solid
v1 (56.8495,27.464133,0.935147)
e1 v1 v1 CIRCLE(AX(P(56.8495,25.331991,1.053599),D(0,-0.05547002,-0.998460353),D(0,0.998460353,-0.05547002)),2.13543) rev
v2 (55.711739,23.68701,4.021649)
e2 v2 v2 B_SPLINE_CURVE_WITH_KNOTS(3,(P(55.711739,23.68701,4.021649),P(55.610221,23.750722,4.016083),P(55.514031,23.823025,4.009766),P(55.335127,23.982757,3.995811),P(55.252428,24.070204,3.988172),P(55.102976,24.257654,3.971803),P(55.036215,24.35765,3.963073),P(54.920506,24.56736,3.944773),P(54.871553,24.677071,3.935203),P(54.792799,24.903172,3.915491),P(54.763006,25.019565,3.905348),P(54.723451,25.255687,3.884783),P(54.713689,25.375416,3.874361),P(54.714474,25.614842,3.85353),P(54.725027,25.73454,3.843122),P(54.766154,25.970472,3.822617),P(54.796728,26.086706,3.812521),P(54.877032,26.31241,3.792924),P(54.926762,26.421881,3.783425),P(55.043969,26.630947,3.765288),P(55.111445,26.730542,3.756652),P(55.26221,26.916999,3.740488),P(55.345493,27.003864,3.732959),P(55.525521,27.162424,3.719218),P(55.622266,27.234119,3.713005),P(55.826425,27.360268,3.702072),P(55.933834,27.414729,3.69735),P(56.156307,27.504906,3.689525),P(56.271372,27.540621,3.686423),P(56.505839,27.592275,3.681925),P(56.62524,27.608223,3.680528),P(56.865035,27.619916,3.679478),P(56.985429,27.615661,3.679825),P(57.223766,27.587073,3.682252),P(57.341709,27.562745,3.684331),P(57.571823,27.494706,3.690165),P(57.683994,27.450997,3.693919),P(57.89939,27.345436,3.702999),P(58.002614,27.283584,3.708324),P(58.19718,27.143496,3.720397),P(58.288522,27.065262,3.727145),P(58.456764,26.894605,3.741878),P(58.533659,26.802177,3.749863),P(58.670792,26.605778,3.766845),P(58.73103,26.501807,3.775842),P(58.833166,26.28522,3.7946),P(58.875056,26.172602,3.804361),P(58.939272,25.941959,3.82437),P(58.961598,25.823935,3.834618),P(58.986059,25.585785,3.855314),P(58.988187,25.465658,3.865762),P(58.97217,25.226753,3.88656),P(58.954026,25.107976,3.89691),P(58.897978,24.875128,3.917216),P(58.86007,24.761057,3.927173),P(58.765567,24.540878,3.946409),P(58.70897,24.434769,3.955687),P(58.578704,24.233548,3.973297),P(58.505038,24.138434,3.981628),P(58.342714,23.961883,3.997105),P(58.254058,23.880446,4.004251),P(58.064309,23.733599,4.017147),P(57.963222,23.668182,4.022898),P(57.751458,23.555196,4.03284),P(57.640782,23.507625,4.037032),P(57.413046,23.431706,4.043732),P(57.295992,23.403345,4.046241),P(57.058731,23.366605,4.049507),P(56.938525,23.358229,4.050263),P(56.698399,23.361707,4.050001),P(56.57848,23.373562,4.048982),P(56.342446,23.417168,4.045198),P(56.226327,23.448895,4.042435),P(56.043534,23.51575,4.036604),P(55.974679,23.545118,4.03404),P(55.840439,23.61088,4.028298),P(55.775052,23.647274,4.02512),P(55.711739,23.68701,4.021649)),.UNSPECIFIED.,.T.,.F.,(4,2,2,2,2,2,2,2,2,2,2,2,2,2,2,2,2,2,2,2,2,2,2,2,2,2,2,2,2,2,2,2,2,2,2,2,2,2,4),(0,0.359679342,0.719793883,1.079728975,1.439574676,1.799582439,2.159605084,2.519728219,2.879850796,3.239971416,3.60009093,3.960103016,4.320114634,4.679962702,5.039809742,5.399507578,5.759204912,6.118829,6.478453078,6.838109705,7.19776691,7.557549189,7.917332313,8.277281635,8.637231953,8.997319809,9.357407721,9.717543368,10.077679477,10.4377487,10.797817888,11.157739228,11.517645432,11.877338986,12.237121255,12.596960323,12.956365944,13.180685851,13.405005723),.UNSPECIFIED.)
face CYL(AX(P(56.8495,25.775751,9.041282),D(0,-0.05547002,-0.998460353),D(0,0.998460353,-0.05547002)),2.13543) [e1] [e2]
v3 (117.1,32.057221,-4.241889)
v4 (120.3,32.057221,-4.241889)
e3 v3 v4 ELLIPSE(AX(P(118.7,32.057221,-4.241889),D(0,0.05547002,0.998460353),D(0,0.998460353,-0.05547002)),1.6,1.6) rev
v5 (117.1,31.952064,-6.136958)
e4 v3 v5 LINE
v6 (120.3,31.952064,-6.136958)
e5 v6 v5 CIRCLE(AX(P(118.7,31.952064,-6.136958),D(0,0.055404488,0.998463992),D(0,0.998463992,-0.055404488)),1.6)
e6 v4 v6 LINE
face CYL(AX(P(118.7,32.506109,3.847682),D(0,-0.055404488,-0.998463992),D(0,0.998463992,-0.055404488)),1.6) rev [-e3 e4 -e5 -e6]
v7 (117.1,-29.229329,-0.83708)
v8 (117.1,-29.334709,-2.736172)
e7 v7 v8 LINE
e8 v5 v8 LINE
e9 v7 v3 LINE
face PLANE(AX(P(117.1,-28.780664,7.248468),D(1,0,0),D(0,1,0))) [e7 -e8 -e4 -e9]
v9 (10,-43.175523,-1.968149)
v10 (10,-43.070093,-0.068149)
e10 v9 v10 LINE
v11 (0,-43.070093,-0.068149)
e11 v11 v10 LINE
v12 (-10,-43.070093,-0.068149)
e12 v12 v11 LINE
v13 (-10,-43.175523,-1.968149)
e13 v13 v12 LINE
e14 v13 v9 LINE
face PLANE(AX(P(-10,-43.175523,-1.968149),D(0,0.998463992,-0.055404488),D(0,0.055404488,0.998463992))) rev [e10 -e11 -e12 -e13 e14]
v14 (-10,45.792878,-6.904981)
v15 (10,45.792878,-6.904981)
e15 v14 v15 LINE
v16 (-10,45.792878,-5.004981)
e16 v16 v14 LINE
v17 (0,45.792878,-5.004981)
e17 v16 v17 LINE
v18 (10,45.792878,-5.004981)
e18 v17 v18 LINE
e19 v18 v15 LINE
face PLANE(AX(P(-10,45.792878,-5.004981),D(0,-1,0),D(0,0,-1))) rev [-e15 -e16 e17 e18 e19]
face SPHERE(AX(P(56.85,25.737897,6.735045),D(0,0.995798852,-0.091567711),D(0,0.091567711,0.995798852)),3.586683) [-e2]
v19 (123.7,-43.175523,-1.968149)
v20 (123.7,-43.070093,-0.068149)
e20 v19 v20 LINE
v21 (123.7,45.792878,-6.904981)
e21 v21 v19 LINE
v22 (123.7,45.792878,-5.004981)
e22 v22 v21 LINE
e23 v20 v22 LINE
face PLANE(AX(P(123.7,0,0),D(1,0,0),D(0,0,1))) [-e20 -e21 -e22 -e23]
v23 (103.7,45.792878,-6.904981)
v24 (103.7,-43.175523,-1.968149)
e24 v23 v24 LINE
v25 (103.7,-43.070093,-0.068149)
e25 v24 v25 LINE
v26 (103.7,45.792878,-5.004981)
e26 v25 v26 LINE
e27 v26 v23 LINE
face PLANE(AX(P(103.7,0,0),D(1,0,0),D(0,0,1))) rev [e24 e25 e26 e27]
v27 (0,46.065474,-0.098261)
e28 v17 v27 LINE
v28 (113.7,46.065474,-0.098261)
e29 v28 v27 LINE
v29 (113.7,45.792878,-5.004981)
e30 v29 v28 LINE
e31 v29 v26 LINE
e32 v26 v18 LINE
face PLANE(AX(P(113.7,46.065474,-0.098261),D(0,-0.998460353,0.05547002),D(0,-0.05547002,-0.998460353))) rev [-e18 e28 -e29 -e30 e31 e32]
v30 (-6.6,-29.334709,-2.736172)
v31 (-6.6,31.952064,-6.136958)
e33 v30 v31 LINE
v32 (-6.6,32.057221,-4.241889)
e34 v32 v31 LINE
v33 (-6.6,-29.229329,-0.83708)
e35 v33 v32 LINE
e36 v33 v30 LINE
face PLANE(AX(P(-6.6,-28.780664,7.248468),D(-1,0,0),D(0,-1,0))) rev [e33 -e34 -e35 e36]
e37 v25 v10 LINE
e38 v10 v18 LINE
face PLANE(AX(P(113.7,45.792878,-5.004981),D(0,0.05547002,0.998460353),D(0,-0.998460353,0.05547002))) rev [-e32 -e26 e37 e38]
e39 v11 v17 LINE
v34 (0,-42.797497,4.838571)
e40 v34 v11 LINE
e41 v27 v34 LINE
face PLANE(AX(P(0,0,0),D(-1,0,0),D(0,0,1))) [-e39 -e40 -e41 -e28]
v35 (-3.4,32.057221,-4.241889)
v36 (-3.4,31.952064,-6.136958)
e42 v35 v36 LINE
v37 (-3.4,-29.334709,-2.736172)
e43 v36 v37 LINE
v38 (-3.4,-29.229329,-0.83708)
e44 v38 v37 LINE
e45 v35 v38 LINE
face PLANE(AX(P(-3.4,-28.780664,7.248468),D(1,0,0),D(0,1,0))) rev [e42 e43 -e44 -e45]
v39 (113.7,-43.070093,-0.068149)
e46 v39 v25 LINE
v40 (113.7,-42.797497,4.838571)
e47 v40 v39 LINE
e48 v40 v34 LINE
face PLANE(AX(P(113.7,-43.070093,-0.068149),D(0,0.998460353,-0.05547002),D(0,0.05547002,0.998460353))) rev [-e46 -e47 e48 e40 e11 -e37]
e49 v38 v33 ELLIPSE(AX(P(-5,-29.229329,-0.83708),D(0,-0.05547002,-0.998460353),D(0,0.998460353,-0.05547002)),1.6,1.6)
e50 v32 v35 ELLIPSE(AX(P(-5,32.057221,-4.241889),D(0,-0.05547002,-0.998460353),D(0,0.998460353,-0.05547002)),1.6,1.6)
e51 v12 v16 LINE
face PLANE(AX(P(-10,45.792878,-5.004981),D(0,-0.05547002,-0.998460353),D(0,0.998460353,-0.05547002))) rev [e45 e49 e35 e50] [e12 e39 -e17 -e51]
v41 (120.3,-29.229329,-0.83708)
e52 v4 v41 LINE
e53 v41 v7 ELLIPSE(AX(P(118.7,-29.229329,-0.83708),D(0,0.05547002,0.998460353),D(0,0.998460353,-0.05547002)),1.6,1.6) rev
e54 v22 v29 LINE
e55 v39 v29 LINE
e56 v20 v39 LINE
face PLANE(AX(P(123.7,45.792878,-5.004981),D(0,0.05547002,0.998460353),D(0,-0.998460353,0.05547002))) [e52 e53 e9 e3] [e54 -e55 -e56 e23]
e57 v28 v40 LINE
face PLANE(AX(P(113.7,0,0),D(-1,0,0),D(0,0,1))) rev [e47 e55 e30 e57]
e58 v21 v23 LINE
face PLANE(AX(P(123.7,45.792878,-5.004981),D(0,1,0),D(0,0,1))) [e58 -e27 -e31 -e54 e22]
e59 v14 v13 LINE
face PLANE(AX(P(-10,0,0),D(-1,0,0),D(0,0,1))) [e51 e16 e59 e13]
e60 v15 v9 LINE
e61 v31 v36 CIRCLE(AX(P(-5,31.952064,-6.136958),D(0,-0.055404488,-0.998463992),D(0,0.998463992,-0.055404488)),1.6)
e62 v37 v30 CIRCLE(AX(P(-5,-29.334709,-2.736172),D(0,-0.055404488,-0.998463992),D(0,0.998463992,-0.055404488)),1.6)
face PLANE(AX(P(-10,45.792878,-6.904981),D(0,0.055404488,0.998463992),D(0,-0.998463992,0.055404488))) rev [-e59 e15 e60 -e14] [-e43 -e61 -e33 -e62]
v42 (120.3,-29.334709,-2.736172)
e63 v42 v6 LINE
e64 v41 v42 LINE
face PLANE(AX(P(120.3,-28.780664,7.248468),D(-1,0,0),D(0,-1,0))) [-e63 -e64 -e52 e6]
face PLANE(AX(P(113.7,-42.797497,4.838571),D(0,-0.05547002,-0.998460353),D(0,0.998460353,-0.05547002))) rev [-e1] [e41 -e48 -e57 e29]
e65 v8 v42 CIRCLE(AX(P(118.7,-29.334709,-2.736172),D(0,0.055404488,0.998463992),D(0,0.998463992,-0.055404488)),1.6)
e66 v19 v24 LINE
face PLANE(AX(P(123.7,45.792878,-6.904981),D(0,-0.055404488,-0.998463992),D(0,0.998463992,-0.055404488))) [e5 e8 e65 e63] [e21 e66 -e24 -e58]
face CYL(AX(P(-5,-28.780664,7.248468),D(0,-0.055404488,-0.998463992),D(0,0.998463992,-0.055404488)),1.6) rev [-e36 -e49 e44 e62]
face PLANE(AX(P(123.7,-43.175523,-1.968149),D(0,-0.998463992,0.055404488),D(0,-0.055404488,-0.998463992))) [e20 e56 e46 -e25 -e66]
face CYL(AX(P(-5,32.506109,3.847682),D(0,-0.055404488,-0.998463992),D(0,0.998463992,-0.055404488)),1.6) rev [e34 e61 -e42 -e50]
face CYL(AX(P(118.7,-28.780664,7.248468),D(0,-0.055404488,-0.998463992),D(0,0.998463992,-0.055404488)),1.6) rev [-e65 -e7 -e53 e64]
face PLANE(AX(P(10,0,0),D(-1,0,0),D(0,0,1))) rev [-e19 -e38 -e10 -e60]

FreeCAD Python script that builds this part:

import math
import FreeCAD as App
import Part
import Sketcher

doc = App.newDocument("Part")
body = doc.addObject("PartDesign::Body", "Body")

# Sketch on YZ plane
sketch1 = body.newObject("Sketcher::SketchObject", "Sketch")
sketch1.AttachmentSupport = (doc.getObject("YZ_Plane"), [""])
sketch1.MapMode = "FlatFace"
sketch1.addGeometry([
    Part.LineSegment(App.Vector(45.8, -5, 0), App.Vector(46.1, -0.1, 0)),
    Part.LineSegment(App.Vector(46.1, -0.1, 0), App.Vector(-42.8, 4.8, 0)),
    Part.LineSegment(App.Vector(-42.8, 4.8, 0), App.Vector(-43.1, -0.1, 0)),
    Part.LineSegment(App.Vector(-43.1, -0.1, 0), App.Vector(45.8, -5, 0)),
], False)
sketch1.addConstraint([
    Sketcher.Constraint("Coincident", 0, 2, 1, 1),
    Sketcher.Constraint("Coincident", 1, 2, 2, 1),
    Sketcher.Constraint("Coincident", 2, 2, 3, 1),
    Sketcher.Constraint("Coincident", 3, 2, 0, 1),
    Sketcher.Constraint("Perpendicular", 0, 1),
    Sketcher.Constraint("Perpendicular", 1, 2),
    Sketcher.Constraint("Perpendicular", 2, 3),
    Sketcher.Constraint("Distance", 1, 89.0),
    Sketcher.Constraint("DistanceY", 0, 2, -1, 1, 0.098261),
    Sketcher.Constraint("DistanceY", -1, 1, 1, 2, 4.838571),
    Sketcher.Constraint("DistanceY", 2, 2, -1, 1, 0.068149),
    Sketcher.Constraint("DistanceX", -1, 1, 3, 2, 45.792878),
])
pad1 = body.newObject("PartDesign::Pad", "Pad")
pad1.Profile = sketch1
pad1.Length = 113.7

# Sketch on YZ plane
sketch2 = body.newObject("Sketcher::SketchObject", "Sketch001")
sketch2.AttachmentSupport = (doc.getObject("YZ_Plane"), [""])
sketch2.MapMode = "FlatFace"
sketch2.addGeometry([
    Part.LineSegment(App.Vector(45.8, -5, 0), App.Vector(45.8, -6.9, 0)),
    Part.LineSegment(App.Vector(45.8, -6.9, 0), App.Vector(-43.2, -2, 0)),
    Part.LineSegment(App.Vector(-43.2, -2, 0), App.Vector(-43.1, -0.1, 0)),
    Part.LineSegment(App.Vector(-43.1, -0.1, 0), App.Vector(45.8, -5, 0)),
], False)
sketch2.addConstraint([
    Sketcher.Constraint("Coincident", 0, 2, 1, 1),
    Sketcher.Constraint("Coincident", 1, 2, 2, 1),
    Sketcher.Constraint("Coincident", 2, 2, 3, 1),
    Sketcher.Constraint("Coincident", 3, 2, 0, 1),
    Sketcher.Constraint("Vertical", 0),
    Sketcher.Constraint("Perpendicular", 1, 2),
    Sketcher.Constraint("Distance", 3, 89.0),
    Sketcher.Constraint("DistanceY", 0, 2, 0, 1, 1.9),
    Sketcher.Constraint("DistanceY", 1, 2, 2, 2, 1.9),
    Sketcher.Constraint("DistanceX", 1, 2, 0, 2, 88.968402),
    Sketcher.Constraint("DistanceX", -1, 1, 0, 2, 45.792878),
    Sketcher.Constraint("DistanceY", 0, 2, -1, 1, 6.904981),
])
pad2 = body.newObject("PartDesign::Pad", "Pad001")
pad2.Profile = sketch2
pad2.Length = 20
pad2.Midplane = True

# Sketch on an angled plane
sketch3 = body.newObject("Sketcher::SketchObject", "Sketch002")
sketch3.Placement = App.Placement(App.Vector(0, -0.241411, -4.350551), App.Rotation(App.Vector(-1, 0, 0), App.Vector(0, 0.998463992, -0.055404488), App.Vector(0, -0.055404488, -0.998463992), "ZXY"))
sketch3.addGeometry([
    Part.LineSegment(App.Vector(3.4, 32.2, 0), App.Vector(3.4, -29.1, 0)),
    Part.ArcOfCircle(Part.Circle(App.Vector(5, -29.1, 0), App.Vector(0, 0, 1), 1.6), math.radians(180), math.radians(360)),
    Part.LineSegment(App.Vector(6.6, -29.1, 0), App.Vector(6.6, 32.2, 0)),
    Part.ArcOfCircle(Part.Circle(App.Vector(5, 32.2, 0), App.Vector(0, 0, 1), 1.6), math.radians(0), math.radians(180)),
], False)
sketch3.addConstraint([
    Sketcher.Constraint("Tangent", 0, 2, 1, 1),
    Sketcher.Constraint("Tangent", 1, 2, 2, 1),
    Sketcher.Constraint("Tangent", 2, 2, 3, 1),
    Sketcher.Constraint("Tangent", 3, 2, 0, 1),
    Sketcher.Constraint("Vertical", 0),
    Sketcher.Constraint("Vertical", 2),
    Sketcher.Constraint("Radius", 1, 1.6),
    Sketcher.Constraint("DistanceX", -1, 1, 1, 3, 5.0),
    Sketcher.Constraint("DistanceY", -1, 1, 3, 3, 32.243),
    Sketcher.Constraint("DistanceY", 0, 2, 0, 1, 61.381055),
])
pocket1 = body.newObject("PartDesign::Pocket", "Pocket")
pocket1.Profile = sketch3
pocket1.Length = 10

# Sketch on an angled plane
sketch4 = body.newObject("Sketcher::SketchObject", "Sketch003")
sketch4.Placement = App.Placement(App.Vector(0, 0.136298, 2.45336), App.Rotation(App.Vector(1, 0, 0), App.Vector(0, 0.998460353, -0.05547002), App.Vector(0, 0.05547002, 0.998460353), "ZXY"))
sketch4.addGeometry(Part.Circle(App.Vector(56.8, 25.2, 0), App.Vector(0, 0, 1), 2.1), False)
sketch4.addConstraint([
    Sketcher.Constraint("Diameter", 0, 4.27086),
    Sketcher.Constraint("DistanceX", -1, 1, 0, 3, 56.8495),
    Sketcher.Constraint("DistanceY", -1, 1, 0, 3, 25.234545),
])
pad3 = body.newObject("PartDesign::Pad", "Pad002")
pad3.Profile = sketch4
pad3.Length = 8

# Sketch on YZ plane
sketch5 = body.newObject("Sketcher::SketchObject", "Sketch004")
sketch5.AttachmentSupport = (doc.getObject("YZ_Plane"), [""])
sketch5.MapMode = "FlatFace"
sketch5.AttachmentOffset = App.Placement(App.Vector(0, 0, 56.85), App.Rotation())
sketch5.addGeometry([
    Part.LineSegment(App.Vector(22.2, 7.1, 0), App.Vector(29.3, 6.4, 0)),
    Part.ArcOfCircle(Part.Circle(App.Vector(25.7, 6.7, 0), App.Vector(0, 0, 1), 3.6), math.radians(-5), math.radians(175)),
], False)
sketch5.addGeometry(Part.LineSegment(App.Vector(29.3, 6.4, 0), App.Vector(22.2, 7.1, 0)), True)  # axis
sketch5.addConstraint([
    Sketcher.Constraint("Coincident", 0, 1, 1, 2),
    Sketcher.Constraint("Coincident", 1, 1, 0, 2),
    Sketcher.Constraint("Coincident", 2, 1, 1, 1),
    Sketcher.Constraint("Coincident", 2, 2, 0, 1),
    Sketcher.Constraint("Radius", 1, 3.586683),
    Sketcher.Constraint("DistanceX", -1, 1, 0, 1, 22.166282),
    Sketcher.Constraint("DistanceY", -1, 1, 0, 1, 7.063469),
    Sketcher.Constraint("DistanceY", -1, 1, 1, 1, 6.406621),
    Sketcher.Constraint("DistanceX", -1, 1, 1, 3, 25.737897),
])
revolution = body.newObject("PartDesign::Revolution", "Revolution")
revolution.Profile = sketch5
revolution.ReferenceAxis = (sketch5, ["Axis0"])
revolution.Angle = 360
doc.recompute()

datumplane = body.newObject("PartDesign::Plane", "DatumPlane")
datumplane.AttachmentSupport = (doc.getObject("YZ_Plane"), [""])
datumplane.MapMode = "FlatFace"
datumplane.AttachmentOffset = App.Placement(App.Vector(0, 0, 56.85), App.Rotation())
mirrored = body.newObject("PartDesign::Mirrored", "Mirrored")
mirrored.Originals = [pad2, pocket1]
mirrored.MirrorPlane = (datumplane, [""])
body.Tip = mirrored

doc.recompute()
